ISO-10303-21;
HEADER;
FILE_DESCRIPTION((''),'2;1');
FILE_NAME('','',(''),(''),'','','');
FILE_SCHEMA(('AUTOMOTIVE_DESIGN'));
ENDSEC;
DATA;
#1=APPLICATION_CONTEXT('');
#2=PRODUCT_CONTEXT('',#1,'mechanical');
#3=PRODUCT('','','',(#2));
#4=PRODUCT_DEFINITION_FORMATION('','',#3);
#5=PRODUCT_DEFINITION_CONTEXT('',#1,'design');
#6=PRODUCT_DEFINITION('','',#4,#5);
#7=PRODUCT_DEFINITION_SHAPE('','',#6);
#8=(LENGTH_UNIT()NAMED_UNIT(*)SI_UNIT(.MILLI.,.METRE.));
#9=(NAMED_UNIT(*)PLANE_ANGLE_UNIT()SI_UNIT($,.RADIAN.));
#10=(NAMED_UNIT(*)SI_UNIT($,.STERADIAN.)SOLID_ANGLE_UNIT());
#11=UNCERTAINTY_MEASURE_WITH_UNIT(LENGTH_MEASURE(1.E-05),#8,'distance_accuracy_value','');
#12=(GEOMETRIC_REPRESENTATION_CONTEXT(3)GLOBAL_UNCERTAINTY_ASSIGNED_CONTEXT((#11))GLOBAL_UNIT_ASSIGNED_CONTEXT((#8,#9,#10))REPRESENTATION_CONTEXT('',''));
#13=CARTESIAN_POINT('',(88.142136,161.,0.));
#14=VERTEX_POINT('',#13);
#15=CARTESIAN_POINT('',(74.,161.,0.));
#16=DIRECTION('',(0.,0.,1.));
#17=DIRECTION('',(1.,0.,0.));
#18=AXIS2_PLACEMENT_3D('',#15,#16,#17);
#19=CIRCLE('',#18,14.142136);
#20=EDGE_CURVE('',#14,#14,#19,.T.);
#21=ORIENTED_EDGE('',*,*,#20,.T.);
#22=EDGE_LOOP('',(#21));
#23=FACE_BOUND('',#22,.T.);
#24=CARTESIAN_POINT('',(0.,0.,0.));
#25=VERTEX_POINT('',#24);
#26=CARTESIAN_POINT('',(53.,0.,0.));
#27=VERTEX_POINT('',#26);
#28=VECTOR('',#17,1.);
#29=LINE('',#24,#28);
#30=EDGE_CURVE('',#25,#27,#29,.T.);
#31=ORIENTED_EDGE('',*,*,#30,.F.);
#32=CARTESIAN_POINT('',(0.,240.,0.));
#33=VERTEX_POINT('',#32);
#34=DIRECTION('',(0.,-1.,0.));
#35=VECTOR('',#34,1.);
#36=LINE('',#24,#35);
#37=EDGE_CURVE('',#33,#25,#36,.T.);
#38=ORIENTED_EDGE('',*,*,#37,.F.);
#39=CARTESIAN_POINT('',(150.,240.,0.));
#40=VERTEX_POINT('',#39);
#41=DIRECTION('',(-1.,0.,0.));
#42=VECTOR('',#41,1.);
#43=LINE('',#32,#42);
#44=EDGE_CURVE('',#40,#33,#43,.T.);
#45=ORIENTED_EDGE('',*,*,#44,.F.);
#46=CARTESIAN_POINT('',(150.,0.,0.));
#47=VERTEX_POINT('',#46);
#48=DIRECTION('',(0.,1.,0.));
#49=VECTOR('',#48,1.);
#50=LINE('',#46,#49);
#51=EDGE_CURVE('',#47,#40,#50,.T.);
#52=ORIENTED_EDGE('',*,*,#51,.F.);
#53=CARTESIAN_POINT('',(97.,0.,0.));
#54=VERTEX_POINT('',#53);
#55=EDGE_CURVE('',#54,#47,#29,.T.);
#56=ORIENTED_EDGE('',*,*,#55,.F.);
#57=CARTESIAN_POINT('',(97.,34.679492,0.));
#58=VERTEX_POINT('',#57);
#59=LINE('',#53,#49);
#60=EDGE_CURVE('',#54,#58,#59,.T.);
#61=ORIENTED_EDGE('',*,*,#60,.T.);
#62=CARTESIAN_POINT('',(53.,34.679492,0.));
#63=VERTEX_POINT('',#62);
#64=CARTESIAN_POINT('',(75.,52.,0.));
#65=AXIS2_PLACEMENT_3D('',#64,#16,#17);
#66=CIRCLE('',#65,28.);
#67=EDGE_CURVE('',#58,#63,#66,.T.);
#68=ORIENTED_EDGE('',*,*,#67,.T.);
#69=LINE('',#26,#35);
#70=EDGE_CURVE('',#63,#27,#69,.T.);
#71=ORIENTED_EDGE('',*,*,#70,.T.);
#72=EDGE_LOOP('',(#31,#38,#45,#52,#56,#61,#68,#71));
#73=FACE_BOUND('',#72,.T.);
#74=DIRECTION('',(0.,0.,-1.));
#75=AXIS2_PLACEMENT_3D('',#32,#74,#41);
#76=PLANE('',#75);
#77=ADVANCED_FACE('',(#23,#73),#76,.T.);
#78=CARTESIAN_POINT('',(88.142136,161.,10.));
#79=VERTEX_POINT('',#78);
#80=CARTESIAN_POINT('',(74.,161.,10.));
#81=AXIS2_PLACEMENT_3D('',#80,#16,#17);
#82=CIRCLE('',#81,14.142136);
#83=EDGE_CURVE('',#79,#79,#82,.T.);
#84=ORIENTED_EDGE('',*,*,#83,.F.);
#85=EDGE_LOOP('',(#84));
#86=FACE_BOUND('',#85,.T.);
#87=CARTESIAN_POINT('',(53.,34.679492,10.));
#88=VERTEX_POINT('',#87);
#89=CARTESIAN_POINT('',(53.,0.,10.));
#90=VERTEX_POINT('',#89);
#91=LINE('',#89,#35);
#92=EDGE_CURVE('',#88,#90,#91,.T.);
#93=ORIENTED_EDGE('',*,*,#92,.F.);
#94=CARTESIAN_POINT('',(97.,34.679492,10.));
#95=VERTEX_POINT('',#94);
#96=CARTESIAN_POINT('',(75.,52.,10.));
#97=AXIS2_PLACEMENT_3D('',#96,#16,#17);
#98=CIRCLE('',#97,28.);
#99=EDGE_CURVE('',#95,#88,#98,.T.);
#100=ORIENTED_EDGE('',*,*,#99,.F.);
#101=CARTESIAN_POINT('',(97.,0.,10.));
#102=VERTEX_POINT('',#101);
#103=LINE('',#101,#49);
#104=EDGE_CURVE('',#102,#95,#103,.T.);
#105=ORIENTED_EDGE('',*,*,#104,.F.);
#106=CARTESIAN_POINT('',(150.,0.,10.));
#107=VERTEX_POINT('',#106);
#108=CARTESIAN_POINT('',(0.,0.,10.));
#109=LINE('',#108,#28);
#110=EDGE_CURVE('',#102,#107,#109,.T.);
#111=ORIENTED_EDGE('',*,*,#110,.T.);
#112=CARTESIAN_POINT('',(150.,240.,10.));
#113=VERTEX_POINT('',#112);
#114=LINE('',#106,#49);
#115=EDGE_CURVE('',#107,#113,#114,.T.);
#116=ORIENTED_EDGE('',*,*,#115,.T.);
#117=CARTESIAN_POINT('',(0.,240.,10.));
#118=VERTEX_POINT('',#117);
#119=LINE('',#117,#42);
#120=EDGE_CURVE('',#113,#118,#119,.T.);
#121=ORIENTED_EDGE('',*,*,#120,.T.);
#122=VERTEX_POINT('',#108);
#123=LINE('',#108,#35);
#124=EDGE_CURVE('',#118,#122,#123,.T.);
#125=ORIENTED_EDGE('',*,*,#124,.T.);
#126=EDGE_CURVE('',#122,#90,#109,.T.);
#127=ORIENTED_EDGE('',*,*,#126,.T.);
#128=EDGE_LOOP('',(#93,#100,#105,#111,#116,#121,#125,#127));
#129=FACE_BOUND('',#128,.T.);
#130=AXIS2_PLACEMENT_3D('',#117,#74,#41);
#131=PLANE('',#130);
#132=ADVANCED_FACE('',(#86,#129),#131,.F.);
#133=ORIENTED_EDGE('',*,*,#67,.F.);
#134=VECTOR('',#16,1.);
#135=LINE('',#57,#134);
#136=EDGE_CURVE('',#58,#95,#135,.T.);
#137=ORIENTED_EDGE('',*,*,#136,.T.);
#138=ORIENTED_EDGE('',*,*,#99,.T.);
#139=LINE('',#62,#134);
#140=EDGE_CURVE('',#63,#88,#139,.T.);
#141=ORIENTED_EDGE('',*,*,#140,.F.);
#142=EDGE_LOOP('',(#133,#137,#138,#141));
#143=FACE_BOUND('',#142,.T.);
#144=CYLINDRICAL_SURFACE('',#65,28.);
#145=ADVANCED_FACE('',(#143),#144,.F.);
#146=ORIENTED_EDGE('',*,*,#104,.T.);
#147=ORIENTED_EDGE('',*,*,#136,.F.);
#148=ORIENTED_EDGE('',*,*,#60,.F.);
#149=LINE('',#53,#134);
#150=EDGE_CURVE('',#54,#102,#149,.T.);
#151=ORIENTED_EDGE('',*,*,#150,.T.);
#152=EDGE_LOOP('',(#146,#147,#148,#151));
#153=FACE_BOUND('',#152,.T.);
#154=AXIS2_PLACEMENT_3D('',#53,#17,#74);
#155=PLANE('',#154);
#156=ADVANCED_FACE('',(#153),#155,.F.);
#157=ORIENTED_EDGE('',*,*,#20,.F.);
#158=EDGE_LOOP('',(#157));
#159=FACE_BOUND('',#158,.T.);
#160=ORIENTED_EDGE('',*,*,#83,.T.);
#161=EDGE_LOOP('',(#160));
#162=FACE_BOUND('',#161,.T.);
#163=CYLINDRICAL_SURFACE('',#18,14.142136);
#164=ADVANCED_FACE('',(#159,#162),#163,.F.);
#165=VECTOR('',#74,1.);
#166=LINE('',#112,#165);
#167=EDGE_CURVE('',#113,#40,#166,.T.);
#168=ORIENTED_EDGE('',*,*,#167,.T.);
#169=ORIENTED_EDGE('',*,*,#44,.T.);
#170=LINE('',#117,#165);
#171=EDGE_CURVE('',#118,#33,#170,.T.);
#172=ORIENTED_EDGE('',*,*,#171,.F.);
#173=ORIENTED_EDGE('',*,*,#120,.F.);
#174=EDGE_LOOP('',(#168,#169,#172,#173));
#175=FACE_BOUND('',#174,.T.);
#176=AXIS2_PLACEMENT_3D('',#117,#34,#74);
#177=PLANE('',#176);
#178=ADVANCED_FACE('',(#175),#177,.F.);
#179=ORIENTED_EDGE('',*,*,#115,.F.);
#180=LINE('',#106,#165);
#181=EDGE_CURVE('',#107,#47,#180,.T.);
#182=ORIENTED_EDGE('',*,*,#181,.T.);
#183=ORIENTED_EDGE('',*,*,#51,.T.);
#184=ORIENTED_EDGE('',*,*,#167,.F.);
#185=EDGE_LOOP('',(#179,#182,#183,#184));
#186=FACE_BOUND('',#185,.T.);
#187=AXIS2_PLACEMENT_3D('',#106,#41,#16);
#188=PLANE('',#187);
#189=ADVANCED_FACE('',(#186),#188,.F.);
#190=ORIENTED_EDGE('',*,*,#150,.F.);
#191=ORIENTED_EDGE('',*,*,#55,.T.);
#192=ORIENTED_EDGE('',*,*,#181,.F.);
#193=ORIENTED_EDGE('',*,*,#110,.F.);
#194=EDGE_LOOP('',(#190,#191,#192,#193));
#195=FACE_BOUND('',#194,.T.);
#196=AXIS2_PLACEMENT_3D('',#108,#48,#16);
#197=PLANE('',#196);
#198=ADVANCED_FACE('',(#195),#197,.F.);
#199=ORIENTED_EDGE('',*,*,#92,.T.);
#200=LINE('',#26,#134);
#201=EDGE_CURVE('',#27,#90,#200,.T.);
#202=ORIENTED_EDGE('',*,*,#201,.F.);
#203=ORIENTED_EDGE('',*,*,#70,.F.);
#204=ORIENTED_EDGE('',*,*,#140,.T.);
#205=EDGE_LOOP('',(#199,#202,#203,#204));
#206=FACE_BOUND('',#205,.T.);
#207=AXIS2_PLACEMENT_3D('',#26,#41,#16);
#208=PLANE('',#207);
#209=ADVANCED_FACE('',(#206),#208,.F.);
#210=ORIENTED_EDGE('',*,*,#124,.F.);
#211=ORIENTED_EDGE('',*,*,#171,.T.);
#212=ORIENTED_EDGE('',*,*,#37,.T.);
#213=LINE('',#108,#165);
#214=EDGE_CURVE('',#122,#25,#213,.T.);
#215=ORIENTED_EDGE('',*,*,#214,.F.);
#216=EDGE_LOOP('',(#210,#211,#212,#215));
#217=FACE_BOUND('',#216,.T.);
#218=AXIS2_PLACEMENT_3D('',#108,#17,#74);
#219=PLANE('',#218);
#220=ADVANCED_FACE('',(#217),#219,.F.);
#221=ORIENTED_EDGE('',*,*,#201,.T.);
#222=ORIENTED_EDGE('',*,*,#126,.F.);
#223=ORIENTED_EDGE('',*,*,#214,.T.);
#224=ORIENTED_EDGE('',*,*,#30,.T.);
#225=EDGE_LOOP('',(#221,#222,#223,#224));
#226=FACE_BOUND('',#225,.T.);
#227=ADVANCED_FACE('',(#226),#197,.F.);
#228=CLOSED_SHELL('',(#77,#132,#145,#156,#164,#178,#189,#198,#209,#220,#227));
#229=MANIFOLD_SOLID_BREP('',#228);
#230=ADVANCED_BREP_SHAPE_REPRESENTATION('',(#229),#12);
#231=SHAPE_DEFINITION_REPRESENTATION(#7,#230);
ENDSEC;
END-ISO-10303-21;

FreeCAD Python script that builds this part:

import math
import FreeCAD as App
import Part
import Sketcher


def add_polygon(sketch, points):
    """Adds a closed chain of lines whose ends are joined by coincident constraints."""
    first, n = sketch.GeometryCount, len(points)
    for a, b in zip(points, points[1:] + points[:1]):
        sketch.addGeometry(Part.LineSegment(App.Vector(*a, 0), App.Vector(*b, 0)), False)
    for i in range(n):
        sketch.addConstraint(Sketcher.Constraint("Coincident", first + i, 2, first + (i + 1) % n, 1))

doc = App.newDocument("Part")
body = doc.addObject("PartDesign::Body", "Body")

sketch1 = body.newObject("Sketcher::SketchObject", "Sketch")
sketch1.AttachmentSupport = (doc.getObject("XY_Plane"), [""])
sketch1.MapMode = "FlatFace"
add_polygon(sketch1, [(0, 240), (0, 0), (150, 0), (150, 240)])
sketch1.addConstraint(Sketcher.Constraint("Vertical", 0))
sketch1.addConstraint(Sketcher.Constraint("Horizontal", 1))
sketch1.addConstraint(Sketcher.Constraint("Vertical", 2))
sketch1.addConstraint(Sketcher.Constraint("Horizontal", 3))
sketch1.addConstraint(Sketcher.Constraint("Coincident", 0, 2, -1, 1))
sketch1.addConstraint(Sketcher.Constraint("DistanceX", 1, 1, 1, 2, 150.0))
sketch1.addConstraint(Sketcher.Constraint("DistanceY", 0, 2, 0, 1, 240.0))
pad1 = body.newObject("PartDesign::Pad", "Pad")
pad1.Profile = sketch1
pad1.Length = 10

sketch2 = body.newObject("Sketcher::SketchObject", "Sketch001")
sketch2.AttachmentSupport = (doc.getObject("XY_Plane"), [""])
sketch2.MapMode = "FlatFace"
sketch2.AttachmentOffset = App.Placement(App.Vector(0, 0, 10), App.Rotation())
sketch2.addGeometry(Part.LineSegment(App.Vector(53, 0, 0), App.Vector(97, 0, 0)), False)
sketch2.addGeometry(Part.LineSegment(App.Vector(97, 0, 0), App.Vector(97, 34.679492, 0)), False)
sketch2.addGeometry(Part.ArcOfCircle(Part.Circle(App.Vector(75, 52, 0), App.Vector(0, 0, 1), 28), math.radians(-38.213211), math.radians(218.213211)), False)
sketch2.addGeometry(Part.LineSegment(App.Vector(53, 34.679492, 0), App.Vector(53, 0, 0)), False)
sketch2.addConstraint(Sketcher.Constraint("Coincident", 0, 2, 1, 1))
sketch2.addConstraint(Sketcher.Constraint("Coincident", 1, 2, 2, 1))
sketch2.addConstraint(Sketcher.Constraint("Coincident", 2, 2, 3, 1))
sketch2.addConstraint(Sketcher.Constraint("Coincident", 3, 2, 0, 1))
sketch2.addConstraint(Sketcher.Constraint("Horizontal", 0))
sketch2.addConstraint(Sketcher.Constraint("Vertical", 1))
sketch2.addConstraint(Sketcher.Constraint("Vertical", 3))
sketch2.addConstraint(Sketcher.Constraint("PointOnObject", 0, 2, -1))
sketch2.addConstraint(Sketcher.Constraint("Horizontal", 1, 2, 2, 2))
sketch2.addConstraint(Sketcher.Constraint("Radius", 2, 28.0))
sketch2.addConstraint(Sketcher.Constraint("DistanceX", 0, 1, 0, 2, 44.0))
sketch2.addConstraint(Sketcher.Constraint("DistanceX", -1, 1, 2, 3, 75.0))
sketch2.addConstraint(Sketcher.Constraint("DistanceY", -1, 1, 2, 3, 52.0))
pocket1 = body.newObject("PartDesign::Pocket", "Pocket")
pocket1.Profile = sketch2
pocket1.Length = 10

sketch3 = body.newObject("Sketcher::SketchObject", "Sketch002")
sketch3.AttachmentSupport = (doc.getObject("XY_Plane"), [""])
sketch3.MapMode = "FlatFace"
sketch3.AttachmentOffset = App.Placement(App.Vector(0, 0, 10), App.Rotation())
sketch3.addGeometry(Part.Circle(App.Vector(74, 161, 0), App.Vector(0, 0, 1), 14.142136), False)
sketch3.addConstraint(Sketcher.Constraint("DistanceX", -1, 1, 0, 3, 74.0))
sketch3.addConstraint(Sketcher.Constraint("DistanceY", -1, 1, 0, 3, 161.0))
sketch3.addConstraint(Sketcher.Constraint("Diameter", 0, 28.284271))
pocket2 = body.newObject("PartDesign::Pocket", "Pocket001")
pocket2.Profile = sketch3
pocket2.Length = 10

doc.recompute()
